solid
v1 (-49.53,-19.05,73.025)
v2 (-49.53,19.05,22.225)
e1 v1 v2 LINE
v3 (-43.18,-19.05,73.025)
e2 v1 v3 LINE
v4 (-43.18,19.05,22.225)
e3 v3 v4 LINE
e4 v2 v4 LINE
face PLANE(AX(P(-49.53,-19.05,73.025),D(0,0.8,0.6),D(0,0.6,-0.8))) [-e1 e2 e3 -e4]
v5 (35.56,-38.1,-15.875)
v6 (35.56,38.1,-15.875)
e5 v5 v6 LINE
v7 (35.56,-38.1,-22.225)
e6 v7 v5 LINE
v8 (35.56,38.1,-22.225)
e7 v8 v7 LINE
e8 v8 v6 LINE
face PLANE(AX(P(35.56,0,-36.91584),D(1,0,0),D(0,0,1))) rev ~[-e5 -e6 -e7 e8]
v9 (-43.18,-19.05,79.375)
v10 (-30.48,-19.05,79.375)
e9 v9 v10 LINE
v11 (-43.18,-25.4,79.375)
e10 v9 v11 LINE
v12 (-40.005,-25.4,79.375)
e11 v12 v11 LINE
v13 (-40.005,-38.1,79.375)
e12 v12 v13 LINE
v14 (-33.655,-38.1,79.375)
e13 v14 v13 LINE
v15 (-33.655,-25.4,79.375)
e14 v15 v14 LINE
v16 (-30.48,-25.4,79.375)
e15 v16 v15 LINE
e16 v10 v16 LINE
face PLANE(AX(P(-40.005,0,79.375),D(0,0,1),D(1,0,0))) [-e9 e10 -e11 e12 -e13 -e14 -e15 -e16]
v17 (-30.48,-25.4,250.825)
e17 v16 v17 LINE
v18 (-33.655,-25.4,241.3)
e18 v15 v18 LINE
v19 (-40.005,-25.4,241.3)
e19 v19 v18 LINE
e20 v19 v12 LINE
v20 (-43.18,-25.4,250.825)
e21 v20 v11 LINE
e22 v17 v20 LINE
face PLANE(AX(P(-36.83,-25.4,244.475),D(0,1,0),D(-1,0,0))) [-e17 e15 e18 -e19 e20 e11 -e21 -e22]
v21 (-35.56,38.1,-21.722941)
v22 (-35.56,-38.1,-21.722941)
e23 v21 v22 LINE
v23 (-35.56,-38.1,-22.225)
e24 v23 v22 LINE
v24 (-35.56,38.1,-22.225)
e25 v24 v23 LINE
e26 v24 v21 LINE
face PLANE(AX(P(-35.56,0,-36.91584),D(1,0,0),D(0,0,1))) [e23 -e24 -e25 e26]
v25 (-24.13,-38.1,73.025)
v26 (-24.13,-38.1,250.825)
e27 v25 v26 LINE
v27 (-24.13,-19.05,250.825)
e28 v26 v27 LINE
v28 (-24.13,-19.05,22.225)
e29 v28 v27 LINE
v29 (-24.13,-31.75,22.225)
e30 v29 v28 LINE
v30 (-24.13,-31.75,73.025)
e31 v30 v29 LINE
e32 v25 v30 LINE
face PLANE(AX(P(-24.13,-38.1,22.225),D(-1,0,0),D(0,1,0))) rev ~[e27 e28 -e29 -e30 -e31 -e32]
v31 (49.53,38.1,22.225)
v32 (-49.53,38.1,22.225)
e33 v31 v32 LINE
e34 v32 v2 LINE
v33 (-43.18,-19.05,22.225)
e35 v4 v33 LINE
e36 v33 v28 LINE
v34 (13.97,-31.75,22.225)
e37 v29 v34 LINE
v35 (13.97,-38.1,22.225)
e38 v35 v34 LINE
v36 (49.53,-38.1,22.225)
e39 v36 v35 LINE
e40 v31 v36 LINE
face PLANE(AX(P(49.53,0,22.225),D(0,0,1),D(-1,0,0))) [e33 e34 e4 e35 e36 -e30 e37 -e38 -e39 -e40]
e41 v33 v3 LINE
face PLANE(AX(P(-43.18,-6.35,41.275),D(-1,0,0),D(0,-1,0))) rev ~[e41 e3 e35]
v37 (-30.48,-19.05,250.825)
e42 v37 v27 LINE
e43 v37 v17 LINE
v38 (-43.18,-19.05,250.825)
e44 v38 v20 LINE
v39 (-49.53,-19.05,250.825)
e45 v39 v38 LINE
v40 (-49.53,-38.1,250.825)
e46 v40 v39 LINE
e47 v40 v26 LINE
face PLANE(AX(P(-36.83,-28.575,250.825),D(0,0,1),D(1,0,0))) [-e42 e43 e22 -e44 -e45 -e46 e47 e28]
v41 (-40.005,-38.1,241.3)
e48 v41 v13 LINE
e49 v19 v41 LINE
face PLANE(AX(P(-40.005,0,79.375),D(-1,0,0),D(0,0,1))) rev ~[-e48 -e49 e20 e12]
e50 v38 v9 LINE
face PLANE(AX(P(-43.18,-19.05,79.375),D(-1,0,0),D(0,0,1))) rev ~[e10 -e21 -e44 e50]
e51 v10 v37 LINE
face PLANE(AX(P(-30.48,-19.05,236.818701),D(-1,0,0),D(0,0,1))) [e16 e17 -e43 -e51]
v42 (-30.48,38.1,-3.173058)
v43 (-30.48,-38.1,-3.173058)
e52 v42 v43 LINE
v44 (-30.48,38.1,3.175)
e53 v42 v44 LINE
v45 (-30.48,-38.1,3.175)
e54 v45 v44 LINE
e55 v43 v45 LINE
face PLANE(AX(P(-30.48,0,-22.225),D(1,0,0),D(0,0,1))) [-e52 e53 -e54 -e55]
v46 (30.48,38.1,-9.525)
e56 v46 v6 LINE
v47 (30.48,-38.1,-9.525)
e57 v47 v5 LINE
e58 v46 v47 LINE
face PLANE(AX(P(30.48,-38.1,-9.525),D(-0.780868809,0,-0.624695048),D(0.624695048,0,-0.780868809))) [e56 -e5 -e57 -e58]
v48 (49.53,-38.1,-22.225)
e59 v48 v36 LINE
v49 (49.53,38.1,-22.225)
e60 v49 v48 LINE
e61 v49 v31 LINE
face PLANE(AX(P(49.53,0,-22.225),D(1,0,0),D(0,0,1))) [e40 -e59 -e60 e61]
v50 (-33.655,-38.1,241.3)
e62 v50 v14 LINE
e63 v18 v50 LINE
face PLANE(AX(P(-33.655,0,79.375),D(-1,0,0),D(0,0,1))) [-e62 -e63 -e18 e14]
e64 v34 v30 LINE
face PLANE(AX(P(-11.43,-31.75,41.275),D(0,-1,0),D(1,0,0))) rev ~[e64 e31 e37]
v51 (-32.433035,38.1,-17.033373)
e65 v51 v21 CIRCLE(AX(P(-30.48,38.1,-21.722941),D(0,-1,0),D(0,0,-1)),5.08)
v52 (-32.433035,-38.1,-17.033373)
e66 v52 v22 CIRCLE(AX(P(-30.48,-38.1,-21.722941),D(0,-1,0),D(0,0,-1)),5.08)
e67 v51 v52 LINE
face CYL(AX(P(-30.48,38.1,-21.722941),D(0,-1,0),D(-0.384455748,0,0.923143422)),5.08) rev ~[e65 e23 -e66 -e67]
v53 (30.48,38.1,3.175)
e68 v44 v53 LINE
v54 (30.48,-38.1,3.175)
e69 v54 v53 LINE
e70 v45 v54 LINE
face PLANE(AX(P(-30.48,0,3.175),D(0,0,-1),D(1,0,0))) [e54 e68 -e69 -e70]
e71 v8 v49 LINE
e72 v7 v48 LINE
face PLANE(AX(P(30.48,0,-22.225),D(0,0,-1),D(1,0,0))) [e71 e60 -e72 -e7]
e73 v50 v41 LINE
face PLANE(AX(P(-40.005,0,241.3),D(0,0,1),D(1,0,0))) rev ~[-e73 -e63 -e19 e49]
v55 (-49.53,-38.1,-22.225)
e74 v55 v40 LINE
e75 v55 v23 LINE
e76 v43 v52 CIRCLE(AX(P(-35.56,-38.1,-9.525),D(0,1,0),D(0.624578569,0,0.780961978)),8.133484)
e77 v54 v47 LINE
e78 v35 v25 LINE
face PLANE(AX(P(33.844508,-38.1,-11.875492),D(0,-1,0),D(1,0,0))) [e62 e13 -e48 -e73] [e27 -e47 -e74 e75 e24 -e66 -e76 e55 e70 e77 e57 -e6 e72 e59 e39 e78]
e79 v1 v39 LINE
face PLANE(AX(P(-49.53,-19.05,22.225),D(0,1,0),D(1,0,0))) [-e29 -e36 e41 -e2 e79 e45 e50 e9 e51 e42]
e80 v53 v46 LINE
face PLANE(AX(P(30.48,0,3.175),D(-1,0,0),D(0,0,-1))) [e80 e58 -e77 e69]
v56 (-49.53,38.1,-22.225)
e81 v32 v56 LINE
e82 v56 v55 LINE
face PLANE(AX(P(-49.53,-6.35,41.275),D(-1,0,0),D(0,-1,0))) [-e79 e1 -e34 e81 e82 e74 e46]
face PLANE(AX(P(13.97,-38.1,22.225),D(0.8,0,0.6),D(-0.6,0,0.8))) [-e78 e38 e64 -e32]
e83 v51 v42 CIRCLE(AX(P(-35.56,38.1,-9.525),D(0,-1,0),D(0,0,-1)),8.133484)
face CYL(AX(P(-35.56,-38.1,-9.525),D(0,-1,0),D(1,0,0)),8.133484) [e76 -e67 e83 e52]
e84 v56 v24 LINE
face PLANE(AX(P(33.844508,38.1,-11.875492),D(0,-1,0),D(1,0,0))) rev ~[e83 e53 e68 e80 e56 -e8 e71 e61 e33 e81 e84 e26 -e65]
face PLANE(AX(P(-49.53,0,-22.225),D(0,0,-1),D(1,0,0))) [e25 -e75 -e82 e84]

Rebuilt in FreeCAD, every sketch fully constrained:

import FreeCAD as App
import Part
import Sketcher

V = App.Vector
Q = App.Units.Quantity


def edges_at(feature, points):
    """Names of the edges that pass closest to the given points."""
    edges = feature.Shape.Edges
    near = lambda p: min(range(len(edges)), key=lambda i: edges[i].distToShape(Part.Vertex(*p))[0])
    return sorted({f"Edge{near(p) + 1}" for p in points})


def add_polygon(sketch, points):
    """Adds a closed chain of lines whose ends are joined by coincident constraints."""
    first, n = sketch.GeometryCount, len(points)
    for a, b in zip(points, points[1:] + points[:1]):
        sketch.addGeometry(Part.LineSegment(App.Vector(*a, 0), App.Vector(*b, 0)), False)
    for i in range(n):
        sketch.addConstraint(Sketcher.Constraint("Coincident", first + i, 2, first + (i + 1) % n, 1))

doc = App.newDocument("Part")
body = doc.addObject("PartDesign::Body", "Body")

# Sketch on XZ plane
sketch1 = body.newObject("Sketcher::SketchObject", "Sketch")
sketch1.AttachmentSupport = (doc.getObject("XZ_Plane"), [""])
sketch1.MapMode = "FlatFace"
add_polygon(sketch1, [(30, -22), (50, -22), (50, 22), (-50, 22), (-50, -22), (-30, -22), (-30, 3), (30, 3)])  # lines 0-7
sketch1.addConstraint(Sketcher.Constraint("Horizontal", 0))
sketch1.addConstraint(Sketcher.Constraint("Vertical", 1))
sketch1.addConstraint(Sketcher.Constraint("Horizontal", 2))
sketch1.addConstraint(Sketcher.Constraint("Vertical", 3))
sketch1.addConstraint(Sketcher.Constraint("Horizontal", 4))
sketch1.addConstraint(Sketcher.Constraint("Vertical", 5))
sketch1.addConstraint(Sketcher.Constraint("Horizontal", 6))
sketch1.addConstraint(Sketcher.Constraint("Vertical", 7))
sketch1.addConstraint(Sketcher.Constraint("Symmetric", 0, 2, 2, 2, -1, 1))
sketch1.addConstraint(Sketcher.Constraint("Symmetric", 4, 2, 7, 2, -2))
sketch1.addConstraint(Sketcher.Constraint("DistanceY", 5, 1, 5, 2, Q("1 in")))
sketch1.addConstraint(Sketcher.Constraint("DistanceX", 2, 2, 2, 1, Q("3.9 in")))
sketch1.addConstraint(Sketcher.Constraint("DistanceX", 6, 1, 6, 2, Q("2.4 in")))
sketch1.addConstraint(Sketcher.Constraint("DistanceY", 1, 1, 1, 2, Q("1.75 in")))
pad1 = body.newObject("PartDesign::Pad", "Pad")
pad1.Profile = sketch1
pad1.Length = Q("3 in")
pad1.Midplane = True

# Sketch on XZ plane
sketch2 = body.newObject("Sketcher::SketchObject", "Sketch001")
sketch2.AttachmentSupport = (doc.getObject("XZ_Plane"), [""])
sketch2.MapMode = "FlatFace"
add_polygon(sketch2, [(-36, -10), (-36, -37), (36, -37), (36, -10)])  # lines 0-3
sketch2.addConstraint(Sketcher.Constraint("Vertical", 0))
sketch2.addConstraint(Sketcher.Constraint("Horizontal", 1))
sketch2.addConstraint(Sketcher.Constraint("Vertical", 2))
sketch2.addConstraint(Sketcher.Constraint("Horizontal", 3))
sketch2.addConstraint(Sketcher.Constraint("DistanceX", 1, 1, 1, 2, Q("2.8 in")))
sketch2.addConstraint(Sketcher.Constraint("DistanceX", 0, 2, -1, 1, Q("1.4 in")))
sketch2.addConstraint(Sketcher.Constraint("DistanceY", 2, 2, -1, 1, Q("0.375 in")))
sketch2.addConstraint(Sketcher.Constraint("DistanceY", 0, 2, 0, 1, Q("27.39084 mm")))
pocket1 = body.newObject("PartDesign::Pocket", "Pocket")
pocket1.Profile = sketch2
pocket1.Length = Q("4 in")
pocket1.Midplane = True

# Sketch on XY plane
sketch3 = body.newObject("Sketcher::SketchObject", "Sketch002")
sketch3.AttachmentSupport = (doc.getObject("XY_Plane"), [""])
sketch3.MapMode = "FlatFace"
sketch3.AttachmentOffset = App.Placement(V(0, 0, 0.875 * 25.4), App.Rotation())
add_polygon(sketch3, [(-50, -19), (-50, -38), (-24, -38), (-24, -19)])  # lines 0-3
sketch3.addConstraint(Sketcher.Constraint("Vertical", 0))
sketch3.addConstraint(Sketcher.Constraint("Horizontal", 1))
sketch3.addConstraint(Sketcher.Constraint("Vertical", 2))
sketch3.addConstraint(Sketcher.Constraint("Horizontal", 3))
sketch3.addConstraint(Sketcher.Constraint("DistanceX", 1, 1, 1, 2, Q("1 in")))
sketch3.addConstraint(Sketcher.Constraint("DistanceY", 0, 2, 0, 1, Q("0.75 in")))
sketch3.addConstraint(Sketcher.Constraint("DistanceY", 0, 2, -1, 1, Q("1.5 in")))
sketch3.addConstraint(Sketcher.Constraint("DistanceX", 0, 2, -1, 1, Q("1.95 in")))
pad2 = body.newObject("PartDesign::Pad", "Pad001")
pad2.Profile = sketch3
pad2.Length = Q("9 in")

# Sketch on XZ plane
sketch4 = body.newObject("Sketcher::SketchObject", "Sketch003")
sketch4.AttachmentSupport = (doc.getObject("XZ_Plane"), [""])
sketch4.MapMode = "FlatFace"
sketch4.AttachmentOffset = App.Placement(V(0, 0, 1.5 * 25.4), App.Rotation())
add_polygon(sketch4, [(-24, 73), (-24, 22), (14, 22)])  # lines 0-2
sketch4.addConstraint(Sketcher.Constraint("Vertical", 0))
sketch4.addConstraint(Sketcher.Constraint("Horizontal", 1))
sketch4.addConstraint(Sketcher.Constraint("DistanceY", 0, 2, 0, 1, Q("2 in")))
sketch4.addConstraint(Sketcher.Constraint("DistanceX", 1, 1, 1, 2, Q("1.5 in")))
sketch4.addConstraint(Sketcher.Constraint("DistanceX", 0, 2, -1, 1, Q("0.95 in")))
sketch4.addConstraint(Sketcher.Constraint("DistanceY", -1, 1, 0, 2, Q("0.875 in")))
pad3 = body.newObject("PartDesign::Pad", "Pad002")
pad3.Profile = sketch4
pad3.Length = Q("0.25 in")
pad3.Reversed = True

# Sketch on XZ plane
sketch5 = body.newObject("Sketcher::SketchObject", "Sketch004")
sketch5.AttachmentSupport = (doc.getObject("XZ_Plane"), [""])
sketch5.MapMode = "FlatFace"
sketch5.AttachmentOffset = App.Placement(V(0, 0, 0.75 * 25.4), App.Rotation())
add_polygon(sketch5, [(-30, 244), (-30, 79), (-43, 79), (-43, 244)])  # lines 0-3
sketch5.addConstraint(Sketcher.Constraint("Vertical", 0))
sketch5.addConstraint(Sketcher.Constraint("Horizontal", 1))
sketch5.addConstraint(Sketcher.Constraint("Vertical", 2))
sketch5.addConstraint(Sketcher.Constraint("Horizontal", 3))
sketch5.addConstraint(Sketcher.Constraint("DistanceX", 1, 2, 1, 1, Q("0.5 in")))
sketch5.addConstraint(Sketcher.Constraint("DistanceY", 0, 2, 0, 1, Q("6.5 in")))
sketch5.addConstraint(Sketcher.Constraint("DistanceX", 0, 2, -1, 1, Q("1.2 in")))
sketch5.addConstraint(Sketcher.Constraint("DistanceY", -1, 1, 0, 2, Q("3.125 in")))
pocket2 = body.newObject("PartDesign::Pocket", "Pocket001")
pocket2.Profile = sketch5
pocket2.Length = Q("0.25 in")
pocket2.Reversed = True

# Sketch on XZ plane
sketch6 = body.newObject("Sketcher::SketchObject", "Sketch005")
sketch6.AttachmentSupport = (doc.getObject("XZ_Plane"), [""])
sketch6.MapMode = "FlatFace"
add_polygon(sketch6, [(-40, 241), (-40, 79), (-34, 79), (-34, 241)])  # lines 0-3
sketch6.addConstraint(Sketcher.Constraint("Vertical", 0))
sketch6.addConstraint(Sketcher.Constraint("Horizontal", 1))
sketch6.addConstraint(Sketcher.Constraint("Vertical", 2))
sketch6.addConstraint(Sketcher.Constraint("Horizontal", 3))
sketch6.addConstraint(Sketcher.Constraint("DistanceX", 1, 1, 1, 2, Q("0.25 in")))
sketch6.addConstraint(Sketcher.Constraint("DistanceY", -1, 1, 2, 2, Q("9.5 in")))
sketch6.addConstraint(Sketcher.Constraint("DistanceY", 0, 2, 0, 1, Q("6.375 in")))
sketch6.addConstraint(Sketcher.Constraint("DistanceX", 0, 2, -1, 1, Q("1.575 in")))
pocket3 = body.newObject("PartDesign::Pocket", "Pocket002")
pocket3.Profile = sketch6
pocket3.Length = Q("5 in")
pocket3.Reversed = True

# Sketch on YZ plane
sketch7 = body.newObject("Sketcher::SketchObject", "Sketch006")
sketch7.AttachmentSupport = (doc.getObject("YZ_Plane"), [""])
sketch7.MapMode = "FlatFace"
sketch7.AttachmentOffset = App.Placement(V(0, 0, -1.95 * 25.4), App.Rotation())
add_polygon(sketch7, [(19, 22), (-19, 22), (-19, 73)])  # lines 0-2
sketch7.addConstraint(Sketcher.Constraint("Horizontal", 0))
sketch7.addConstraint(Sketcher.Constraint("Vertical", 1))
sketch7.addConstraint(Sketcher.Constraint("DistanceY", 1, 1, 1, 2, Q("2 in")))
sketch7.addConstraint(Sketcher.Constraint("DistanceX", 0, 2, 0, 1, Q("1.5 in")))
sketch7.addConstraint(Sketcher.Constraint("DistanceX", 0, 2, -1, 1, Q("0.75 in")))
sketch7.addConstraint(Sketcher.Constraint("DistanceY", -1, 1, 0, 2, Q("0.875 in")))
pad4 = body.newObject("PartDesign::Pad", "Pad003")
pad4.Profile = sketch7
pad4.Length = Q("0.25 in")

# Sketch on XZ plane
sketch8 = body.newObject("Sketcher::SketchObject", "Sketch007")
sketch8.AttachmentSupport = (doc.getObject("XZ_Plane"), [""])
sketch8.MapMode = "FlatFace"
sketch8.AttachmentOffset = App.Placement(V(0, 0, 0.75 * 25.4), App.Rotation())
add_polygon(sketch8, [(-30, 252), (-30, 237), (-43, 237), (-43, 252)])  # lines 0-3
sketch8.addConstraint(Sketcher.Constraint("Vertical", 0))
sketch8.addConstraint(Sketcher.Constraint("Horizontal", 1))
sketch8.addConstraint(Sketcher.Constraint("Vertical", 2))
sketch8.addConstraint(Sketcher.Constraint("Horizontal", 3))
sketch8.addConstraint(Sketcher.Constraint("DistanceX", 1, 2, 1, 1, Q("0.5 in")))
sketch8.addConstraint(Sketcher.Constraint("DistanceX", 0, 2, -1, 1, Q("1.2 in")))
sketch8.addConstraint(Sketcher.Constraint("DistanceY", -1, 1, 0, 2, Q("236.818701 mm")))
sketch8.addConstraint(Sketcher.Constraint("DistanceY", -1, 1, 2, 2, Q("252.131299 mm")))
pocket4 = body.newObject("PartDesign::Pocket", "Pocket003")
pocket4.Profile = sketch8
pocket4.Length = Q("0.25 in")
pocket4.Reversed = True

# Sketch on XZ plane
sketch9 = body.newObject("Sketcher::SketchObject", "Sketch008")
sketch9.AttachmentSupport = (doc.getObject("XZ_Plane"), [""])
sketch9.MapMode = "FlatFace"
sketch9.AttachmentOffset = App.Placement(V(0, 0, 1.5 * 25.4), App.Rotation())
sketch9.addGeometry(Part.Circle(V(-36, -10, 0), V(0, 0, 1), 8), False)
sketch9.addConstraint(Sketcher.Constraint("DistanceX", 0, 3, -1, 1, Q("1.4 in")))
sketch9.addConstraint(Sketcher.Constraint("Diameter", 0, Q("16.266969 mm")))
sketch9.addConstraint(Sketcher.Constraint("DistanceY", 0, 3, -1, 1, Q("0.375 in")))
pad5 = body.newObject("PartDesign::Pad", "Pad004")
pad5.Profile = sketch9
pad5.Length = Q("3 in")
pad5.Reversed = True
doc.recompute()

fillet = body.newObject("PartDesign::Fillet", "Fillet")
fillet.Base = (pad5, edges_at(pad5, [(-35.56, 0, -17.658)]))
fillet.Radius = Q("0.2 in")

# Sketch on XZ plane
sketch10 = body.newObject("Sketcher::SketchObject", "Sketch009")
sketch10.AttachmentSupport = (doc.getObject("XZ_Plane"), [""])
sketch10.MapMode = "FlatFace"
sketch10.AttachmentOffset = App.Placement(V(0, 0, 1.5 * 25.4), App.Rotation())
add_polygon(sketch10, [(36, -10), (30, -10), (36, -16)])  # lines 0-2
sketch10.addConstraint(Sketcher.Constraint("Horizontal", 0))
sketch10.addConstraint(Sketcher.Constraint("Vertical", 2))
sketch10.addConstraint(Sketcher.Constraint("DistanceX", 0, 2, 0, 1, Q("0.2 in")))
sketch10.addConstraint(Sketcher.Constraint("DistanceY", 2, 1, 2, 2, Q("0.25 in")))
sketch10.addConstraint(Sketcher.Constraint("DistanceX", -1, 1, 0, 2, Q("1.2 in")))
sketch10.addConstraint(Sketcher.Constraint("DistanceY", 0, 2, -1, 1, Q("0.375 in")))
pad6 = body.newObject("PartDesign::Pad", "Pad005")
pad6.Profile = sketch10
pad6.Length = Q("3 in")
pad6.Reversed = True

doc.recompute()
